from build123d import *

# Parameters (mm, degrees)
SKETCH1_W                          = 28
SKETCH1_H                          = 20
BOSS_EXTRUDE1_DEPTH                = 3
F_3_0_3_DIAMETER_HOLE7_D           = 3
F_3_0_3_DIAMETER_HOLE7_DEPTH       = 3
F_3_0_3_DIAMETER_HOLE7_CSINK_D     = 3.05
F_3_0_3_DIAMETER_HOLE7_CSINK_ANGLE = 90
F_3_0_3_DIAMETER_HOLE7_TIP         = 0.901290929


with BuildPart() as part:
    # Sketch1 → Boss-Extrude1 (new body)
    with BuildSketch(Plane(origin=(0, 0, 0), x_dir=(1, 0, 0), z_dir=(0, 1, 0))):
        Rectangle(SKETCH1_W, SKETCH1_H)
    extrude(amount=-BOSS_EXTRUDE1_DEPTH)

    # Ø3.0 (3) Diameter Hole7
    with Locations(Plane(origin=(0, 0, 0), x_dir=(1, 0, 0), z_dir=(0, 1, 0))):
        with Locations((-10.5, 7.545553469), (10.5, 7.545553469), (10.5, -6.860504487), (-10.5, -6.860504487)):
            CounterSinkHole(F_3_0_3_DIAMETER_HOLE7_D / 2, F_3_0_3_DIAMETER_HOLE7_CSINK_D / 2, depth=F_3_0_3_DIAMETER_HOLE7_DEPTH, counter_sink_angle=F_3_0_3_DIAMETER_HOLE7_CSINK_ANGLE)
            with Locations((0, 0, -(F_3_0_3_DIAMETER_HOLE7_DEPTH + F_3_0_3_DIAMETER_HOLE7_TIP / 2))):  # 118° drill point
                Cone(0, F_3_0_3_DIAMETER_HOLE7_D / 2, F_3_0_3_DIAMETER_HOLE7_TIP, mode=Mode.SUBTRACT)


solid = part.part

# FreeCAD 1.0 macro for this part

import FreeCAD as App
import Part
import Sketcher
Q = App.Units.Quantity

doc = App.newDocument("Part")
body = doc.addObject("PartDesign::Body", "Body")

sketch1 = body.newObject("Sketcher::SketchObject", "Sketch")
sketch1.AttachmentSupport = (doc.getObject("XZ_Plane"), [""])
sketch1.MapMode = "FlatFace"
sketch1.addGeometry([
    Part.LineSegment(App.Vector(-14, -10, 0), App.Vector(-14, 10, 0)),
    Part.LineSegment(App.Vector(-14, 10, 0), App.Vector(14, 10, 0)),
    Part.LineSegment(App.Vector(14, 10, 0), App.Vector(14, -10, 0)),
    Part.LineSegment(App.Vector(14, -10, 0), App.Vector(-14, -10, 0)),
], False)
sketch1.addConstraint([
    Sketcher.Constraint("Coincident", 0, 2, 1, 1),
    Sketcher.Constraint("Coincident", 1, 2, 2, 1),
    Sketcher.Constraint("Coincident", 2, 2, 3, 1),
    Sketcher.Constraint("Coincident", 3, 2, 0, 1),
    Sketcher.Constraint("Vertical", 0),
    Sketcher.Constraint("Horizontal", 1),
    Sketcher.Constraint("Vertical", 2),
    Sketcher.Constraint("Horizontal", 3),
    Sketcher.Constraint("Symmetric", 0, 2, 2, 2, -1, 1),
    Sketcher.Constraint("DistanceX", 1, 1, 1, 2, Q("28 mm")),
    Sketcher.Constraint("DistanceY", 0, 1, 0, 2, Q("20 mm")),
])
pad1 = body.newObject("PartDesign::Pad", "Pad")
pad1.Profile = sketch1
pad1.Length = 3

sketch2 = body.newObject("Sketcher::SketchObject", "Sketch001")
sketch2.AttachmentSupport = (doc.getObject("XZ_Plane"), [""])
sketch2.MapMode = "FlatFace"
sketch2.addGeometry([
    Part.Circle(App.Vector(-10.5, -7.545553, 0), App.Vector(0, 0, 1), 1.5),
    Part.Circle(App.Vector(10.5, -7.545553, 0), App.Vector(0, 0, 1), 1.5),
    Part.Circle(App.Vector(10.5, 6.860504, 0), App.Vector(0, 0, 1), 1.5),
    Part.Circle(App.Vector(-10.5, 6.860504, 0), App.Vector(0, 0, 1), 1.5),
], False)
sketch2.addConstraint([
    Sketcher.Constraint("Equal", 0, 1),
    Sketcher.Constraint("Equal", 1, 2),
    Sketcher.Constraint("Equal", 2, 3),
    Sketcher.Constraint("Symmetric", 0, 3, 1, 3, -2),
    Sketcher.Constraint("Symmetric", 2, 3, 3, 3, -2),
    Sketcher.Constraint("Vertical", 1, 3, 2, 3),
    Sketcher.Constraint("Diameter", 0, Q("3 mm")),
    Sketcher.Constraint("DistanceX", 0, 3, 1, 3, Q("21 mm")),
    Sketcher.Constraint("DistanceY", 0, 3, -1, 1, Q("7.545553 mm")),
    Sketcher.Constraint("DistanceY", -1, 1, 2, 3, Q("6.860504 mm")),
])
doc.recompute()
hole = body.newObject("PartDesign::Hole", "Hole")
hole.Profile = sketch2
hole.ThreadType = "None"
hole.Diameter = 3
hole.DepthType = "Dimension"
hole.Depth = 3
hole.DrillPoint = "Angled"
hole.DrillPointAngle = 118
hole.HoleCutType = "Countersink"
hole.HoleCutDiameter = 3.05
hole.HoleCutCountersinkAngle = 90
hole.Reversed = True

doc.recompute()
